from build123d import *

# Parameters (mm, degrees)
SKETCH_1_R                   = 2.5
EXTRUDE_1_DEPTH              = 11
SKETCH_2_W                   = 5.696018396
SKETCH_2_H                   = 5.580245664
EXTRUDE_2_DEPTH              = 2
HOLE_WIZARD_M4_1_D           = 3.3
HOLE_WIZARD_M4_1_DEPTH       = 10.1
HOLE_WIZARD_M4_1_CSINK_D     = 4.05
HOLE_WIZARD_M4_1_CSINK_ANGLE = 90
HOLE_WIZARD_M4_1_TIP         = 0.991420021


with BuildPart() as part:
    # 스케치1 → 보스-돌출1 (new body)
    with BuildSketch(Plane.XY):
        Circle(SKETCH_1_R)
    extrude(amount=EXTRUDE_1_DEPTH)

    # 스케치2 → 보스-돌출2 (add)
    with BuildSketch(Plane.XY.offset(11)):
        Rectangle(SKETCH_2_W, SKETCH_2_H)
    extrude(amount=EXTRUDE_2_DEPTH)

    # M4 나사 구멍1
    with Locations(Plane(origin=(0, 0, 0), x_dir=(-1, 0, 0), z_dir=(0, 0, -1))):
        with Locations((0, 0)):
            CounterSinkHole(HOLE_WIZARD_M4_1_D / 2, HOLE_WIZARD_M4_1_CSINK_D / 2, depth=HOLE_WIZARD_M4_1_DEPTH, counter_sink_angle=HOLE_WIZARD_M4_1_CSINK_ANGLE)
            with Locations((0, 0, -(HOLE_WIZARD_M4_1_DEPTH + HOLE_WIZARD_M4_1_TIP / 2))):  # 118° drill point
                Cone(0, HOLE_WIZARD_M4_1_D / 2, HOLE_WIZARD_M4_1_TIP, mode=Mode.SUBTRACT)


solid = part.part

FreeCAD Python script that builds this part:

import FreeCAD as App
import Part
import Sketcher


def add_polygon(sketch, points):
    """Adds a closed chain of lines whose ends are joined by coincident constraints."""
    first, n = sketch.GeometryCount, len(points)
    for a, b in zip(points, points[1:] + points[:1]):
        sketch.addGeometry(Part.LineSegment(App.Vector(*a, 0), App.Vector(*b, 0)), False)
    for i in range(n):
        sketch.addConstraint(Sketcher.Constraint("Coincident", first + i, 2, first + (i + 1) % n, 1))

doc = App.newDocument("Part")
body = doc.addObject("PartDesign::Body", "Body")

# Sketch on XY plane
sketch1 = body.newObject("Sketcher::SketchObject", "Sketch")
sketch1.AttachmentSupport = (doc.getObject("XY_Plane"), [""])
sketch1.MapMode = "FlatFace"
sketch1.addGeometry(Part.Circle(App.Vector(0, 0, 0), App.Vector(0, 0, 1), 2.5), False)
sketch1.addConstraint([
    Sketcher.Constraint("Coincident", 0, 3, -1, 1),
    Sketcher.Constraint("Diameter", 0, 5.0),
])
pad1 = body.newObject("PartDesign::Pad", "Pad")
pad1.Profile = sketch1
pad1.Length = 11

# Sketch on XY plane
sketch2 = body.newObject("Sketcher::SketchObject", "Sketch001")
sketch2.AttachmentSupport = (doc.getObject("XY_Plane"), [""])
sketch2.MapMode = "FlatFace"
sketch2.AttachmentOffset = App.Placement(App.Vector(0, 0, 11), App.Rotation())
add_polygon(sketch2, [(-3, 3), (-3, -3), (3, -3), (3, 3)])  # lines 0-3
sketch2.addConstraint([
    Sketcher.Constraint("Vertical", 0),
    Sketcher.Constraint("Horizontal", 1),
    Sketcher.Constraint("Vertical", 2),
    Sketcher.Constraint("Horizontal", 3),
    Sketcher.Constraint("Symmetric", 0, 2, 2, 2, -1, 1),
    Sketcher.Constraint("DistanceX", 1, 1, 1, 2, 5.696018),
    Sketcher.Constraint("DistanceY", 0, 2, 0, 1, 5.580246),
])
pad2 = body.newObject("PartDesign::Pad", "Pad001")
pad2.Profile = sketch2
pad2.Length = 2

# Sketch on XY plane
sketch3 = body.newObject("Sketcher::SketchObject", "Sketch002")
sketch3.AttachmentSupport = (doc.getObject("XY_Plane"), [""])
sketch3.MapMode = "FlatFace"
sketch3.addGeometry(Part.Circle(App.Vector(0, 0, 0), App.Vector(0, 0, 1), 1.6), False)
sketch3.addConstraint([
    Sketcher.Constraint("Coincident", 0, 3, -1, 1),
    Sketcher.Constraint("Diameter", 0, 3.3),
])
doc.recompute()
hole = body.newObject("PartDesign::Hole", "Hole")
hole.Profile = sketch3
hole.ThreadType = "None"
hole.Diameter = 3.3
hole.DepthType = "Dimension"
hole.Depth = 10.1
hole.DrillPoint = "Angled"
hole.DrillPointAngle = 118
hole.HoleCutType = "Countersink"
hole.HoleCutDiameter = 4.05
hole.HoleCutCountersinkAngle = 90
hole.Reversed = True

doc.recompute()
